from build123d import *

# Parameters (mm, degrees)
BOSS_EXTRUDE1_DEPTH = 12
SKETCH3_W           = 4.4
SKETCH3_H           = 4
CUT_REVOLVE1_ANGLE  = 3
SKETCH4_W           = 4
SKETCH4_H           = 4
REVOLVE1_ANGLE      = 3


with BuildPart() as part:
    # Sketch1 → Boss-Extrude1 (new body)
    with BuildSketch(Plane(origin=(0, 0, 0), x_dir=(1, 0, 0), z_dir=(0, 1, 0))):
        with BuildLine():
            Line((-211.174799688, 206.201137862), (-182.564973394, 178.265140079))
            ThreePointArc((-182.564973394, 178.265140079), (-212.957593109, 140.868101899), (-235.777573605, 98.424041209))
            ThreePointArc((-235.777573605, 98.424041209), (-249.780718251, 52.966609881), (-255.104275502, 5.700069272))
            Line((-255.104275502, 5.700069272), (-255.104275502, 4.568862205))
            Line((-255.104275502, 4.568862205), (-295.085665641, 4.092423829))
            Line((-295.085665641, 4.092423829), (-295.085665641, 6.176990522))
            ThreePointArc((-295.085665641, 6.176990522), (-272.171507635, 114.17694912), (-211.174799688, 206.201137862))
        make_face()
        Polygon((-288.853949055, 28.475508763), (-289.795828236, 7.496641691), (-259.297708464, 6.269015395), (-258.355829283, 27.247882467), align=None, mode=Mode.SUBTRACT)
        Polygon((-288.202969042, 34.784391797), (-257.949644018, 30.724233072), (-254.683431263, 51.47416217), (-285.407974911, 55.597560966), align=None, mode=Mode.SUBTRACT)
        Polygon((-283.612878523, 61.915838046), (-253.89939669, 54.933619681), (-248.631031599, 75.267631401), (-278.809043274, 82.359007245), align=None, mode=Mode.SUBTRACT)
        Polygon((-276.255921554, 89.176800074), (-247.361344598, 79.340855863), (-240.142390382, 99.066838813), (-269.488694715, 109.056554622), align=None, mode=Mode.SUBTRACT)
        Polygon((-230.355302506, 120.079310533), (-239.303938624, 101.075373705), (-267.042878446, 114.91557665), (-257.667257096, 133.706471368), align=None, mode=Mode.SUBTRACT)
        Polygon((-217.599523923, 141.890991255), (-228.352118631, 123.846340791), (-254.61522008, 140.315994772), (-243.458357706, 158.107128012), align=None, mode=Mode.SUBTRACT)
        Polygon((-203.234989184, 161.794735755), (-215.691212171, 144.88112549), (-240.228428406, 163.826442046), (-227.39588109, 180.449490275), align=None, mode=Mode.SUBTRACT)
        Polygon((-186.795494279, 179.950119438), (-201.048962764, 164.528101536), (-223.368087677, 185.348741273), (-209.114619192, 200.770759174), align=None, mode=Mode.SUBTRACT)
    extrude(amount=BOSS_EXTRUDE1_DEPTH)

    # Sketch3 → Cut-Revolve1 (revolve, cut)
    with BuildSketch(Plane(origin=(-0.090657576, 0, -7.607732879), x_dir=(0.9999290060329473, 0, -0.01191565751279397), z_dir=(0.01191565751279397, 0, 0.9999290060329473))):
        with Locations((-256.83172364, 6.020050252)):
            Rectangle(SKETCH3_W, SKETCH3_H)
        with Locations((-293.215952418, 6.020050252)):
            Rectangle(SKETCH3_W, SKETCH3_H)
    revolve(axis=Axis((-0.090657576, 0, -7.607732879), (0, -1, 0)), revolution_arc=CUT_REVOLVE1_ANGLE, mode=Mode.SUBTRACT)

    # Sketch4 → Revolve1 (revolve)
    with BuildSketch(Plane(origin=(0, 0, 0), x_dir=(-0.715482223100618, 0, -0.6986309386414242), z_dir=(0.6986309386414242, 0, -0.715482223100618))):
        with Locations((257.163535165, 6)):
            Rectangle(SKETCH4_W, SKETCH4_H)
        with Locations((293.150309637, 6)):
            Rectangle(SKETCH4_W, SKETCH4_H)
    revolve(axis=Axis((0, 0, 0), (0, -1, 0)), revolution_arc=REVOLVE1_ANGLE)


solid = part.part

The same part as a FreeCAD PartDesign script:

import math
import FreeCAD as App
import Part
import Sketcher

V = App.Vector

doc = App.newDocument("Part")
body = doc.addObject("PartDesign::Body", "Body")

# Sketch on XZ plane
sketch1 = body.newObject("Sketcher::SketchObject", "Sketch")
sketch1.AttachmentSupport = (doc.getObject("XZ_Plane"), [""])
sketch1.MapMode = "FlatFace"
sketch1.addGeometry([
    Part.LineSegment(V(-182.564973, -178.26514, 0), V(-211.1748, -206.201138, 0)),  # 0
    Part.ArcOfCircle(Part.Circle(V(0, 0, 0), V(0, 0, 1), 295.15031), math.radians(-178.80081), math.radians(-135.682733)),  # 1
    Part.LineSegment(V(-295.085666, -6.176991, 0), V(-295.085666, -4.092424, 0)),  # 2
    Part.LineSegment(V(-295.085666, -4.092424, 0), V(-255.104276, -4.568862, 0)),  # 3
    Part.LineSegment(V(-255.104276, -4.568862, 0), V(-255.104276, -5.700069, 0)),  # 4
    Part.ArcOfCircle(Part.Circle(V(0.031566, -0.897577, 0), V(0, 0, 1), 255.181037), math.radians(-178.921633), math.radians(-157.530883)),  # 5
    Part.ArcOfCircle(Part.Circle(V(-0.615973, 0.65362, 0), V(0, 0, 1), 255.181037), math.radians(-157.153464), math.radians(-135.481107)),  # 6
    Part.LineSegment(V(-288.853949, -28.475509, 0), V(-258.355829, -27.247882, 0)),  # 7
    Part.LineSegment(V(-258.355829, -27.247882, 0), V(-259.297708, -6.269015, 0)),  # 8
    Part.LineSegment(V(-259.297708, -6.269015, 0), V(-289.795828, -7.496642, 0)),  # 9
    Part.LineSegment(V(-289.795828, -7.496642, 0), V(-288.853949, -28.475509, 0)),  # 10
    Part.LineSegment(V(-288.202969, -34.784392, 0), V(-285.407975, -55.597561, 0)),  # 11
    Part.LineSegment(V(-285.407975, -55.597561, 0), V(-254.683431, -51.474162, 0)),  # 12
    Part.LineSegment(V(-254.683431, -51.474162, 0), V(-257.949644, -30.724233, 0)),  # 13
    Part.LineSegment(V(-257.949644, -30.724233, 0), V(-288.202969, -34.784392, 0)),  # 14
    Part.LineSegment(V(-276.255922, -89.1768, 0), V(-269.488695, -109.056555, 0)),  # 15
    Part.LineSegment(V(-269.488695, -109.056555, 0), V(-240.14239, -99.066839, 0)),  # 16
    Part.LineSegment(V(-240.14239, -99.066839, 0), V(-247.361345, -79.340856, 0)),  # 17
    Part.LineSegment(V(-247.361345, -79.340856, 0), V(-276.255922, -89.1768, 0)),  # 18
    Part.LineSegment(V(-283.612879, -61.915838, 0), V(-278.809043, -82.359007, 0)),  # 19
    Part.LineSegment(V(-278.809043, -82.359007, 0), V(-248.631032, -75.267631, 0)),  # 20
    Part.LineSegment(V(-248.631032, -75.267631, 0), V(-253.899397, -54.93362, 0)),  # 21
    Part.LineSegment(V(-253.899397, -54.93362, 0), V(-283.612879, -61.915838, 0)),  # 22
    Part.LineSegment(V(-217.599524, -141.890991, 0), V(-228.352119, -123.846341, 0)),  # 23
    Part.LineSegment(V(-228.352119, -123.846341, 0), V(-254.61522, -140.315995, 0)),  # 24
    Part.LineSegment(V(-254.61522, -140.315995, 0), V(-243.458358, -158.107128, 0)),  # 25
    Part.LineSegment(V(-243.458358, -158.107128, 0), V(-217.599524, -141.890991, 0)),  # 26
    Part.LineSegment(V(-186.795494, -179.950119, 0), V(-201.048963, -164.528102, 0)),  # 27
    Part.LineSegment(V(-201.048963, -164.528102, 0), V(-223.368088, -185.348741, 0)),  # 28
    Part.LineSegment(V(-223.368088, -185.348741, 0), V(-209.114619, -200.770759, 0)),  # 29
    Part.LineSegment(V(-209.114619, -200.770759, 0), V(-186.795494, -179.950119, 0)),  # 30
    Part.LineSegment(V(-203.234989, -161.794736, 0), V(-215.691212, -144.881125, 0)),  # 31
    Part.LineSegment(V(-215.691212, -144.881125, 0), V(-240.228428, -163.826442, 0)),  # 32
    Part.LineSegment(V(-240.228428, -163.826442, 0), V(-227.395881, -180.44949, 0)),  # 33
    Part.LineSegment(V(-227.395881, -180.44949, 0), V(-203.234989, -161.794736, 0)),  # 34
    Part.LineSegment(V(-230.355303, -120.079311, 0), V(-239.303939, -101.075374, 0)),  # 35
    Part.LineSegment(V(-239.303939, -101.075374, 0), V(-267.042878, -114.915577, 0)),  # 36
    Part.LineSegment(V(-267.042878, -114.915577, 0), V(-257.667257, -133.706471, 0)),  # 37
    Part.LineSegment(V(-257.667257, -133.706471, 0), V(-230.355303, -120.079311, 0)),  # 38
], False)
sketch1.addConstraint([
    Sketcher.Constraint("Coincident", 0, 2, 1, 2),
    Sketcher.Constraint("Coincident", 1, 1, 2, 1),
    Sketcher.Constraint("Coincident", 2, 2, 3, 1),
    Sketcher.Constraint("Coincident", 3, 2, 4, 1),
    Sketcher.Constraint("Coincident", 4, 2, 5, 1),
    Sketcher.Constraint("Coincident", 5, 2, 6, 1),
    Sketcher.Constraint("Coincident", 6, 2, 0, 1),
    Sketcher.Constraint("Coincident", 7, 2, 8, 1),
    Sketcher.Constraint("Coincident", 8, 2, 9, 1),
    Sketcher.Constraint("Coincident", 9, 2, 10, 1),
    Sketcher.Constraint("Coincident", 10, 2, 7, 1),
    Sketcher.Constraint("Coincident", 11, 2, 12, 1),
    Sketcher.Constraint("Coincident", 12, 2, 13, 1),
    Sketcher.Constraint("Coincident", 13, 2, 14, 1),
    Sketcher.Constraint("Coincident", 14, 2, 11, 1),
    Sketcher.Constraint("Coincident", 15, 2, 16, 1),
    Sketcher.Constraint("Coincident", 16, 2, 17, 1),
    Sketcher.Constraint("Coincident", 17, 2, 18, 1),
    Sketcher.Constraint("Coincident", 18, 2, 15, 1),
    Sketcher.Constraint("Coincident", 19, 2, 20, 1),
    Sketcher.Constraint("Coincident", 20, 2, 21, 1),
    Sketcher.Constraint("Coincident", 21, 2, 22, 1),
    Sketcher.Constraint("Coincident", 22, 2, 19, 1),
    Sketcher.Constraint("Coincident", 23, 2, 24, 1),
    Sketcher.Constraint("Coincident", 24, 2, 25, 1),
    Sketcher.Constraint("Coincident", 25, 2, 26, 1),
    Sketcher.Constraint("Coincident", 26, 2, 23, 1),
    Sketcher.Constraint("Coincident", 27, 2, 28, 1),
    Sketcher.Constraint("Coincident", 28, 2, 29, 1),
    Sketcher.Constraint("Coincident", 29, 2, 30, 1),
    Sketcher.Constraint("Coincident", 30, 2, 27, 1),
    Sketcher.Constraint("Coincident", 31, 2, 32, 1),
    Sketcher.Constraint("Coincident", 32, 2, 33, 1),
    Sketcher.Constraint("Coincident", 33, 2, 34, 1),
    Sketcher.Constraint("Coincident", 34, 2, 31, 1),
    Sketcher.Constraint("Coincident", 35, 2, 36, 1),
    Sketcher.Constraint("Coincident", 36, 2, 37, 1),
    Sketcher.Constraint("Coincident", 37, 2, 38, 1),
    Sketcher.Constraint("Coincident", 38, 2, 35, 1),
    Sketcher.Constraint("Vertical", 2),
    Sketcher.Constraint("Vertical", 4),
    Sketcher.Constraint("Coincident", 1, 3, -1, 1),
    Sketcher.Constraint("Distance", 8, 21.0),
    Sketcher.Constraint("Distance", 10, 21.0),
    Sketcher.Constraint("Distance", 11, 21.0),
    Sketcher.Constraint("Distance", 12, 31.0),
    Sketcher.Constraint("Distance", 15, 21.0),
    Sketcher.Constraint("Distance", 16, 31.0),
    Sketcher.Constraint("Distance", 19, 21.0),
    Sketcher.Constraint("Distance", 20, 31.0),
    Sketcher.Constraint("Distance", 24, 31.0),
    Sketcher.Constraint("Distance", 25, 21.0),
    Sketcher.Constraint("Distance", 27, 21.0),
    Sketcher.Constraint("Distance", 29, 21.0),
    Sketcher.Constraint("Distance", 32, 31.0),
    Sketcher.Constraint("Distance", 33, 21.0),
    Sketcher.Constraint("Distance", 36, 31.0),
    Sketcher.Constraint("Distance", 37, 21.0),
    Sketcher.Constraint("Radius", 1, 295.15031),
    Sketcher.Constraint("Radius", 5, 255.181037),
    Sketcher.Constraint("Radius", 6, 255.181037),
    Sketcher.Constraint("DistanceX", 0, 2, -1, 1, 211.1748),
    Sketcher.Constraint("DistanceY", 18, 2, -1, 1, 89.1768),
    Sketcher.Constraint("DistanceY", 27, 2, -1, 1, 164.528102),
    Sketcher.Constraint("DistanceX", 4, 2, 5, 2, 19.326702),
    Sketcher.Constraint("DistanceX", 5, 2, 6, 2, 53.2126),
    Sketcher.Constraint("DistanceY", 6, 2, 5, 2, 79.841099),
    Sketcher.Constraint("DistanceX", 7, 2, 12, 2, 3.672398),
    Sketcher.Constraint("DistanceY", 11, 2, 12, 2, 4.123399),
    Sketcher.Constraint("DistanceY", 14, 2, 1, 1, 28.607401),
    Sketcher.Constraint("DistanceY", 15, 2, 17, 2, 29.715699),
    Sketcher.Constraint("DistanceX", 19, 2, 17, 2, 31.447699),
    Sketcher.Constraint("DistanceX", 12, 2, 20, 2, 6.0524),
    Sketcher.Constraint("DistanceY", 23, 2, 5, 2, 25.4223),
    Sketcher.Constraint("DistanceY", 23, 2, 16, 2, 24.779502),
    Sketcher.Constraint("DistanceX", 24, 2, 23, 2, 26.263101),
    Sketcher.Constraint("DistanceX", 18, 2, 24, 2, 21.640701),
    Sketcher.Constraint("DistanceY", 28, 2, 6, 2, 7.083601),
    Sketcher.Constraint("DistanceY", 28, 2, 32, 2, 21.522299),
    Sketcher.Constraint("DistanceX", 37, 2, 25, 2, 14.208899),
    Sketcher.Constraint("Distance", 3, 39.984229),
    Sketcher.Constraint("Distance", 13, 21.005421),
    Sketcher.Constraint("Distance", 17, 21.005421),
    Sketcher.Constraint("Distance", 21, 21.005421),
    Sketcher.Constraint("Distance", 23, 21.005421),
    Sketcher.Constraint("Distance", 31, 21.005421),
    Sketcher.Constraint("Distance", 35, 21.005421),
    Sketcher.Constraint("DistanceY", 2, 1, 2, 2, 2.084567),
    Sketcher.Constraint("DistanceY", 4, 2, 4, 1, 1.131207),
    Sketcher.Constraint("DistanceY", -1, 1, 6, 3, 0.65362),
    Sketcher.Constraint("DistanceY", 4, 2, -1, 1, 5.700069),
    Sketcher.Constraint("DistanceX", 7, 2, -1, 1, 258.355829),
    Sketcher.Constraint("DistanceX", 8, 2, -1, 1, 259.297708),
    Sketcher.Constraint("DistanceX", 9, 2, -1, 1, 289.795828),
    Sketcher.Constraint("DistanceY", 9, 2, -1, 1, 7.496642),
    Sketcher.Constraint("DistanceX", 10, 2, -1, 1, 288.853949),
    Sketcher.Constraint("DistanceY", 11, 2, -1, 1, 55.597561),
    Sketcher.Constraint("DistanceX", 14, 2, -1, 1, 288.202969),
    Sketcher.Constraint("DistanceX", 16, 2, -1, 1, 240.14239),
    Sketcher.Constraint("DistanceX", 18, 2, -1, 1, 276.255922),
    Sketcher.Constraint("DistanceY", 20, 2, -1, 1, 75.267631),
    Sketcher.Constraint("DistanceY", 21, 2, -1, 1, 54.93362),
    Sketcher.Constraint("DistanceX", 22, 2, -1, 1, 283.612879),
    Sketcher.Constraint("DistanceY", 25, 2, -1, 1, 158.107128),
    Sketcher.Constraint("DistanceY", 26, 2, -1, 1, 141.890991),
    Sketcher.Constraint("DistanceX", 29, 2, -1, 1, 209.114619),
    Sketcher.Constraint("DistanceY", 29, 2, -1, 1, 200.770759),
    Sketcher.Constraint("DistanceY", 30, 2, -1, 1, 179.950119),
    Sketcher.Constraint("DistanceX", 32, 2, -1, 1, 240.228428),
    Sketcher.Constraint("DistanceX", 33, 2, -1, 1, 227.395881),
    Sketcher.Constraint("DistanceX", 34, 2, -1, 1, 203.234989),
    Sketcher.Constraint("DistanceX", 35, 2, -1, 1, 239.303939),
    Sketcher.Constraint("DistanceX", 36, 2, -1, 1, 267.042878),
    Sketcher.Constraint("DistanceY", 37, 2, -1, 1, 133.706471),
    Sketcher.Constraint("DistanceY", 38, 2, -1, 1, 120.079311),
    Sketcher.Constraint("DistanceY", 7, 2, 3, 2, 22.67902),
    Sketcher.Constraint("DistanceY", 13, 2, 7, 2, 3.476351),
    Sketcher.Constraint("DistanceX", 27, 2, 6, 2, 18.483989),
    Sketcher.Constraint("DistanceX", 26, 2, 31, 2, 1.908312),
])
pad1 = body.newObject("PartDesign::Pad", "Pad")
pad1.Profile = sketch1
pad1.Length = 12
pad1.Reversed = True

# Sketch on an angled plane
sketch2 = body.newObject("Sketcher::SketchObject", "Sketch001")
sketch2.Placement = App.Placement(V(-0.090658, 0, -7.607733), App.Rotation(V(0.999929006, 0, -0.011915658), V(0, 1, 0), V(0.011915658, 0, 0.999929006), "ZXY"))
sketch2.addGeometry([
    Part.LineSegment(V(-259, 8, 0), V(-259, 4, 0)),  # 0
    Part.LineSegment(V(-259, 4, 0), V(-254.6, 4, 0)),  # 1
    Part.LineSegment(V(-254.6, 4, 0), V(-254.6, 8, 0)),  # 2
    Part.LineSegment(V(-254.6, 8, 0), V(-259, 8, 0)),  # 3
    Part.LineSegment(V(-295.4, 8, 0), V(-295.4, 4, 0)),  # 4
    Part.LineSegment(V(-295.4, 4, 0), V(-291, 4, 0)),  # 5
    Part.LineSegment(V(-291, 4, 0), V(-291, 8, 0)),  # 6
    Part.LineSegment(V(-291, 8, 0), V(-295.4, 8, 0)),  # 7
], False)
sketch2.addConstraint([
    Sketcher.Constraint("Coincident", 0, 2, 1, 1),
    Sketcher.Constraint("Coincident", 1, 2, 2, 1),
    Sketcher.Constraint("Coincident", 2, 2, 3, 1),
    Sketcher.Constraint("Coincident", 3, 2, 0, 1),
    Sketcher.Constraint("Coincident", 4, 2, 5, 1),
    Sketcher.Constraint("Coincident", 5, 2, 6, 1),
    Sketcher.Constraint("Coincident", 6, 2, 7, 1),
    Sketcher.Constraint("Coincident", 7, 2, 4, 1),
    Sketcher.Constraint("Vertical", 0),
    Sketcher.Constraint("Horizontal", 1),
    Sketcher.Constraint("Vertical", 2),
    Sketcher.Constraint("Horizontal", 3),
    Sketcher.Constraint("Vertical", 4),
    Sketcher.Constraint("Horizontal", 5),
    Sketcher.Constraint("Vertical", 6),
    Sketcher.Constraint("Horizontal", 7),
    Sketcher.Constraint("Horizontal", 1, 2, 4, 2),
    Sketcher.Constraint("Horizontal", 3, 2, 6, 2),
    Sketcher.Constraint("Equal", 3, 5),
    Sketcher.Constraint("DistanceY", 0, 2, 0, 1, 4.0),
    Sketcher.Constraint("DistanceX", 1, 1, 1, 2, 4.4),
    Sketcher.Constraint("DistanceY", -1, 1, 0, 2, 4.02005),
    Sketcher.Constraint("DistanceX", 4, 2, 0, 2, 36.384229),
    Sketcher.Constraint("DistanceX", 0, 2, -1, 1, 259.031724),
])
groove = body.newObject("PartDesign::Groove", "Groove")
groove.Profile = sketch2
groove.ReferenceAxis = (sketch2, ["V_Axis"])
groove.Angle = 3
groove.Reversed = True

# Sketch on an angled plane
sketch3 = body.newObject("Sketcher::SketchObject", "Sketch002")
sketch3.Placement = App.Placement(V(0, 0, 0), App.Rotation(V(-0.715482223, 0, -0.698630939), V(0, 1, 0), V(0.698630939, 0, -0.715482223), "ZXY"))
sketch3.addGeometry([
    Part.LineSegment(V(255.2, 8, 0), V(255.2, 4, 0)),  # 0
    Part.LineSegment(V(255.2, 4, 0), V(259.2, 4, 0)),  # 1
    Part.LineSegment(V(259.2, 4, 0), V(259.2, 8, 0)),  # 2
    Part.LineSegment(V(259.2, 8, 0), V(255.2, 8, 0)),  # 3
    Part.LineSegment(V(291.2, 8, 0), V(291.2, 4, 0)),  # 4
    Part.LineSegment(V(291.2, 4, 0), V(295.2, 4, 0)),  # 5
    Part.LineSegment(V(295.2, 4, 0), V(295.2, 8, 0)),  # 6
    Part.LineSegment(V(295.2, 8, 0), V(291.2, 8, 0)),  # 7
], False)
sketch3.addConstraint([
    Sketcher.Constraint("Coincident", 0, 2, 1, 1),
    Sketcher.Constraint("Coincident", 1, 2, 2, 1),
    Sketcher.Constraint("Coincident", 2, 2, 3, 1),
    Sketcher.Constraint("Coincident", 3, 2, 0, 1),
    Sketcher.Constraint("Coincident", 4, 2, 5, 1),
    Sketcher.Constraint("Coincident", 5, 2, 6, 1),
    Sketcher.Constraint("Coincident", 6, 2, 7, 1),
    Sketcher.Constraint("Coincident", 7, 2, 4, 1),
    Sketcher.Constraint("Vertical", 0),
    Sketcher.Constraint("Horizontal", 1),
    Sketcher.Constraint("Vertical", 2),
    Sketcher.Constraint("Horizontal", 3),
    Sketcher.Constraint("Vertical", 4),
    Sketcher.Constraint("Horizontal", 5),
    Sketcher.Constraint("Vertical", 6),
    Sketcher.Constraint("Horizontal", 7),
    Sketcher.Constraint("Horizontal", 1, 2, 4, 2),
    Sketcher.Constraint("Horizontal", 3, 2, 6, 2),
    Sketcher.Constraint("Equal", 3, 5),
    Sketcher.Constraint("Equal", 7, 0),
    Sketcher.Constraint("DistanceX", 1, 1, 1, 2, 4.0),
    Sketcher.Constraint("DistanceY", -1, 1, 0, 2, 4.0),
    Sketcher.Constraint("DistanceX", -1, 1, 4, 2, 291.15031),
    Sketcher.Constraint("DistanceX", -1, 1, 0, 2, 255.163535),
])
revolution = body.newObject("PartDesign::Revolution", "Revolution")
revolution.Profile = sketch3
revolution.ReferenceAxis = (sketch3, ["V_Axis"])
revolution.Angle = 3
revolution.Reversed = True

doc.recompute()
